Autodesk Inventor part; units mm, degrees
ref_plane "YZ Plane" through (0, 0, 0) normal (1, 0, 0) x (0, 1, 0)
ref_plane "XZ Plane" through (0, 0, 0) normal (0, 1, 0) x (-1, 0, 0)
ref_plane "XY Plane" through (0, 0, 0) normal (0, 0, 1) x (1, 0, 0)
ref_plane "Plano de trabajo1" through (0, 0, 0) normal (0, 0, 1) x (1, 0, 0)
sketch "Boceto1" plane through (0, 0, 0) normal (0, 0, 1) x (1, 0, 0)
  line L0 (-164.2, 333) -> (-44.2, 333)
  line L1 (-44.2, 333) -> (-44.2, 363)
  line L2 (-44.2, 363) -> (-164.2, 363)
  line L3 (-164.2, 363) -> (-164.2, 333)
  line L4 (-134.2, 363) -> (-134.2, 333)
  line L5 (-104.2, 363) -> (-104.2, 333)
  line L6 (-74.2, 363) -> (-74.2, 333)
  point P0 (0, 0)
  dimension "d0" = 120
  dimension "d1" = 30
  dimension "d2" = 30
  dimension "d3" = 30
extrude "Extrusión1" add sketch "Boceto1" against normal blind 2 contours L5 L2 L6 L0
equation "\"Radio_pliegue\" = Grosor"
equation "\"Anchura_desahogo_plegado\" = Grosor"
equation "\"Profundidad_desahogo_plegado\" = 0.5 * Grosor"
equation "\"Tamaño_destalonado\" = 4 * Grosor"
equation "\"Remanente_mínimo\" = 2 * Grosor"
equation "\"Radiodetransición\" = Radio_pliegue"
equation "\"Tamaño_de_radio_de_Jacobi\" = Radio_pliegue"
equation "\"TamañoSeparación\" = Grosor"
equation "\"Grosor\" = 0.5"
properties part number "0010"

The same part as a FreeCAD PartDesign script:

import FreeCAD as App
import Part
import Sketcher
Q = App.Units.Quantity

doc = App.newDocument("Part")
body = doc.addObject("PartDesign::Body", "Body")

sketch1 = body.newObject("Sketcher::SketchObject", "Sketch")
sketch1.AttachmentSupport = (doc.getObject("XY_Plane"), [""])
sketch1.MapMode = "FlatFace"
sketch1.addGeometry(Part.LineSegment(App.Vector(-104, 363, 0), App.Vector(-104, 333, 0)), False)
sketch1.addGeometry(Part.LineSegment(App.Vector(-104, 333, 0), App.Vector(-74, 333, 0)), False)
sketch1.addGeometry(Part.LineSegment(App.Vector(-74, 333, 0), App.Vector(-74, 363, 0)), False)
sketch1.addGeometry(Part.LineSegment(App.Vector(-74, 363, 0), App.Vector(-104, 363, 0)), False)
sketch1.addConstraint(Sketcher.Constraint("Coincident", 0, 2, 1, 1))
sketch1.addConstraint(Sketcher.Constraint("Coincident", 1, 2, 2, 1))
sketch1.addConstraint(Sketcher.Constraint("Coincident", 2, 2, 3, 1))
sketch1.addConstraint(Sketcher.Constraint("Coincident", 3, 2, 0, 1))
sketch1.addConstraint(Sketcher.Constraint("Vertical", 0))
sketch1.addConstraint(Sketcher.Constraint("Horizontal", 1))
sketch1.addConstraint(Sketcher.Constraint("Vertical", 2))
sketch1.addConstraint(Sketcher.Constraint("Horizontal", 3))
sketch1.addConstraint(Sketcher.Constraint("Equal", 3, 0))
sketch1.addConstraint(Sketcher.Constraint("DistanceX", 1, 1, 1, 2, Q("30 mm")))
sketch1.addConstraint(Sketcher.Constraint("DistanceY", -1, 1, 0, 2, Q("333 mm")))
sketch1.addConstraint(Sketcher.Constraint("DistanceX", 0, 2, -1, 1, Q("104.2 mm")))
pad1 = body.newObject("PartDesign::Pad", "Pad")
pad1.Profile = sketch1
pad1.Length = 2
pad1.Reversed = True

doc.recompute()
